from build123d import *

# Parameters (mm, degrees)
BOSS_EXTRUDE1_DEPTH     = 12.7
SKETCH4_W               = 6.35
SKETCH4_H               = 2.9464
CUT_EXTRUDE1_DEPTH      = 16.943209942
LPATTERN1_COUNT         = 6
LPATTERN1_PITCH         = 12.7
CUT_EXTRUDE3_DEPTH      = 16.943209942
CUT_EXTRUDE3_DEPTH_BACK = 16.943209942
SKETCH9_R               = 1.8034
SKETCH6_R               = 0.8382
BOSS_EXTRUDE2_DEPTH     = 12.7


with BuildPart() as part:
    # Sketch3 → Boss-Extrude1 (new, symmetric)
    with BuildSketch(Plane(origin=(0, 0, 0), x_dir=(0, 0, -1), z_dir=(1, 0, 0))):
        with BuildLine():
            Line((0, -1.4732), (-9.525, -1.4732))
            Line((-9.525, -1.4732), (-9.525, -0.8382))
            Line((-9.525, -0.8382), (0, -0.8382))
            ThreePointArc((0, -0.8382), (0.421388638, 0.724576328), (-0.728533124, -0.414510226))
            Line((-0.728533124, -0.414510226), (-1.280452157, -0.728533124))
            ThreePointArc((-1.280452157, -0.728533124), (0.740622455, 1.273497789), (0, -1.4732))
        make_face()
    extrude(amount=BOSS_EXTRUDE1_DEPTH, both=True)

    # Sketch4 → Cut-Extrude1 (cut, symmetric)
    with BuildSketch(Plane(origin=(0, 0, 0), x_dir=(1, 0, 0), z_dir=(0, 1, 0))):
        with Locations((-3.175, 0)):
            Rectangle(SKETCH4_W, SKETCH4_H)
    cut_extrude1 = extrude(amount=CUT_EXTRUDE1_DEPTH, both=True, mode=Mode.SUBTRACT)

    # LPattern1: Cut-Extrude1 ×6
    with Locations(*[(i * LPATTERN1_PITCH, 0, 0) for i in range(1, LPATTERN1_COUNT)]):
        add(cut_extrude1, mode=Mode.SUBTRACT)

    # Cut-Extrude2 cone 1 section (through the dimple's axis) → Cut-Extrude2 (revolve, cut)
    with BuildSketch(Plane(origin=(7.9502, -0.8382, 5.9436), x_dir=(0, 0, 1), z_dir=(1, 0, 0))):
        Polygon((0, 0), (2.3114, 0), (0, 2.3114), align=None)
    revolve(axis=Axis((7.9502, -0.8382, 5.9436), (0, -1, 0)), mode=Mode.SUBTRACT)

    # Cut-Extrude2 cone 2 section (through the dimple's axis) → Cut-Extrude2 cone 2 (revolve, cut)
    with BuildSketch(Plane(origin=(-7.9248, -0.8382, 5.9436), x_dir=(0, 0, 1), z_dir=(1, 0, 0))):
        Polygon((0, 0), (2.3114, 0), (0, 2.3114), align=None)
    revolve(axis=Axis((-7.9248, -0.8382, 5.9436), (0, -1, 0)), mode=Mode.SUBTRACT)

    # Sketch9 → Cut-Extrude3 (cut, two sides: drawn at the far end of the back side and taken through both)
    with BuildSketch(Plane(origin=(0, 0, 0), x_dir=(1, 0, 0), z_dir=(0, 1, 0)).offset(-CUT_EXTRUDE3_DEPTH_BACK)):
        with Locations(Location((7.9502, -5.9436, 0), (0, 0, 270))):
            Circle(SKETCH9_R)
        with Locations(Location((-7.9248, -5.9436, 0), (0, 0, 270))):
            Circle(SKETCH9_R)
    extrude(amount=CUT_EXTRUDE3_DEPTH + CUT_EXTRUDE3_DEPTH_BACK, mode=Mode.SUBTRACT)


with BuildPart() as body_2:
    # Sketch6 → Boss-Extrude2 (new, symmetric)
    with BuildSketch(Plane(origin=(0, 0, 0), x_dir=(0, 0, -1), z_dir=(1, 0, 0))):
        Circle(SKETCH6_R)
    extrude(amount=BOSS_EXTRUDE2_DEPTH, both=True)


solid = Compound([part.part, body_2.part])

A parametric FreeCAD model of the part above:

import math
import FreeCAD as App
import Part
import Sketcher

V = App.Vector
Q = App.Units.Quantity


def add_polygon(sketch, points):
    """Adds a closed chain of lines whose ends are joined by coincident constraints."""
    first, n = sketch.GeometryCount, len(points)
    for a, b in zip(points, points[1:] + points[:1]):
        sketch.addGeometry(Part.LineSegment(App.Vector(*a, 0), App.Vector(*b, 0)), False)
    for i in range(n):
        sketch.addConstraint(Sketcher.Constraint("Coincident", first + i, 2, first + (i + 1) % n, 1))

doc = App.newDocument("Part")
params = doc.addObject("Spreadsheet::Sheet", "Params")
for row, (alias, value) in enumerate([
    ("sketch1_radius", "0.058 in"),
    ("sketch1_radius2", "0.033 in"),
    ("sketch1_height", "0.375 in"),
    ("pad1_length", "1 in"),
    ("sketch2_width", "0.25 in"),
    ("sketch2_height", "0.116 in"),
    ("pocket1_length", "33.88642 mm"),
    ("linearpattern_pitch", "0.5 in"),
    ("sketch3_width", "0.091 in"),
    ("groove_angle", "360 deg"),
    ("sketch4_width", "0.091 in"),
    ("groove2_angle", "360 deg"),
    ("sketch5_diameter", "0.142 in"),
    ("sketch6_diameter", "0.066 in"),
    ("pad2_length", "1 in"),
], start=1):
    params.set(f"A{row}", alias)
    params.set(f"B{row}", "=" + value)
    params.setAlias(f"B{row}", alias)

body = doc.addObject("PartDesign::Body", "Body")

sketch1 = body.newObject("Sketcher::SketchObject", "Sketch")
sketch1.AttachmentSupport = (doc.getObject("YZ_Plane"), [""])
sketch1.MapMode = "FlatFace"
sketch1.addGeometry([
    Part.LineSegment(V(-1.5, 9.5, 0), V(-1.5, 0, 0)),
    Part.ArcOfCircle(Part.Circle(V(0, 0, 0), V(0, 0, 1), 1.5), math.radians(180), math.radians(480)),
    Part.LineSegment(V(-0.7, 1.3, 0), V(-0.4, 0.7, 0)),
    Part.ArcOfCircle(Part.Circle(V(0, 0, 0), V(0, 0, 1), 0.8), math.radians(180), math.radians(480)),
    Part.LineSegment(V(-0.8, 0, 0), V(-0.8, 9.5, 0)),
    Part.LineSegment(V(-0.8, 9.5, 0), V(-1.5, 9.5, 0)),
], False)
sketch1.addConstraint([
    Sketcher.Constraint("Tangent", 0, 2, 1, 1),
    Sketcher.Constraint("Coincident", 1, 2, 2, 1),
    Sketcher.Constraint("Coincident", 2, 2, 3, 2),
    Sketcher.Constraint("Tangent", 3, 1, 4, 1),
    Sketcher.Constraint("Coincident", 4, 2, 5, 1),
    Sketcher.Constraint("Coincident", 5, 2, 0, 1),
    Sketcher.Constraint("Vertical", 0),
    Sketcher.Constraint("Vertical", 4),
    Sketcher.Constraint("Horizontal", 5),
    Sketcher.Constraint("Coincident", 1, 3, -1, 1),
    Sketcher.Constraint("Coincident", 3, 3, -1, 1),
    Sketcher.Constraint("Radius", 1, Q("0.058 in")),
    Sketcher.Constraint("Radius", 3, Q("0.033 in")),
    Sketcher.Constraint("DistanceY", 0, 2, 0, 1, Q("0.375 in")),
    Sketcher.Constraint("DistanceX", 2, 2, -1, 1, Q("0.41451 mm")),
    Sketcher.Constraint("DistanceY", 2, 2, 1, 2, Q("0.551919 mm")),
])
sketch1.setExpression("Constraints[11]", "Params.sketch1_radius")
sketch1.setExpression("Constraints[12]", "Params.sketch1_radius2")
sketch1.setExpression("Constraints[13]", "Params.sketch1_height")
pad1 = body.newObject("PartDesign::Pad", "Pad")
pad1.Profile = sketch1
pad1.setExpression("Length", "Params.pad1_length")
pad1.Midplane = True

sketch2 = body.newObject("Sketcher::SketchObject", "Sketch001")
sketch2.AttachmentSupport = (doc.getObject("XZ_Plane"), [""])
sketch2.MapMode = "FlatFace"
add_polygon(sketch2, [(-6.3, -1.5), (-6.3, 1.5), (0, 1.5), (0, -1.5)])
sketch2.addConstraint([
    Sketcher.Constraint("Vertical", 0),
    Sketcher.Constraint("Horizontal", 1),
    Sketcher.Constraint("Vertical", 2),
    Sketcher.Constraint("Horizontal", 3),
    Sketcher.Constraint("Symmetric", 1, 2, 2, 2, -1, 1),
    Sketcher.Constraint("DistanceX", 1, 1, 1, 2, Q("0.25 in")),
    Sketcher.Constraint("DistanceY", 0, 1, 0, 2, Q("0.116 in")),
])
sketch2.setExpression("Constraints[9]", "Params.sketch2_width")
sketch2.setExpression("Constraints[10]", "Params.sketch2_height")
pocket1 = body.newObject("PartDesign::Pocket", "Pocket")
pocket1.Profile = sketch2
pocket1.setExpression("Length", "Params.pocket1_length")
pocket1.Midplane = True
doc.recompute()

linearpattern = body.newObject("PartDesign::LinearPattern", "LinearPattern")
linearpattern.Originals = [pocket1]
linearpattern.Direction = (doc.getObject("X_Axis"), [""])
linearpattern.Mode = "offset"
linearpattern.setExpression("Offset", "Params.linearpattern_pitch")
linearpattern.Occurrences = 6
body.Tip = linearpattern

sketch3 = body.newObject("Sketcher::SketchObject", "Sketch002")
sketch3.AttachmentSupport = (doc.getObject("YZ_Plane"), [""])
sketch3.MapMode = "FlatFace"
sketch3.AttachmentOffset = App.Placement(V(0, 0, 0.313 * 25.4), App.Rotation())
add_polygon(sketch3, [(-0.8, 5.9), (-0.8, 8.3), (-3.1, 5.9)])
sketch3.addGeometry(Part.LineSegment(V(-0.8, 5.9, 0), V(-3.1, 5.9, 0)), True)
sketch3.addConstraint([
    Sketcher.Constraint("Vertical", 0),
    Sketcher.Constraint("Horizontal", 2),
    Sketcher.Constraint("Horizontal", 3),
    Sketcher.Constraint("Coincident", 3, 1, 2, 2),
    Sketcher.Constraint("Equal", 2, 3),
    Sketcher.Constraint("Equal", 3, 0),
    Sketcher.Constraint("DistanceX", 2, 1, 2, 2, Q("0.091 in")),
    Sketcher.Constraint("DistanceX", 0, 2, -1, 1, Q("0.033 in")),
    Sketcher.Constraint("DistanceY", -1, 1, 0, 2, Q("0.325 in")),
])
sketch3.setExpression("Constraints[9]", "Params.sketch3_width")
groove = body.newObject("PartDesign::Groove", "Groove")
groove.Profile = sketch3
groove.ReferenceAxis = (sketch3, ["Axis0"])
groove.setExpression("Angle", "Params.groove_angle")

sketch4 = body.newObject("Sketcher::SketchObject", "Sketch003")
sketch4.AttachmentSupport = (doc.getObject("YZ_Plane"), [""])
sketch4.MapMode = "FlatFace"
sketch4.AttachmentOffset = App.Placement(V(0, 0, -0.312 * 25.4), App.Rotation())
add_polygon(sketch4, [(-0.8, 5.9), (-0.8, 8.3), (-3.1, 5.9)])
sketch4.addGeometry(Part.LineSegment(V(-0.8, 5.9, 0), V(-3.1, 5.9, 0)), True)
sketch4.addConstraint([
    Sketcher.Constraint("Vertical", 0),
    Sketcher.Constraint("Horizontal", 2),
    Sketcher.Constraint("Horizontal", 3),
    Sketcher.Constraint("Coincident", 3, 1, 2, 2),
    Sketcher.Constraint("Equal", 2, 3),
    Sketcher.Constraint("Equal", 3, 0),
    Sketcher.Constraint("DistanceX", 2, 1, 2, 2, Q("0.091 in")),
    Sketcher.Constraint("DistanceX", 0, 2, -1, 1, Q("0.033 in")),
    Sketcher.Constraint("DistanceY", -1, 1, 0, 2, Q("0.325 in")),
])
sketch4.setExpression("Constraints[9]", "Params.sketch4_width")
groove2 = body.newObject("PartDesign::Groove", "Groove001")
groove2.Profile = sketch4
groove2.ReferenceAxis = (sketch4, ["Axis0"])
groove2.setExpression("Angle", "Params.groove2_angle")

sketch5 = body.newObject("Sketcher::SketchObject", "Sketch004")
sketch5.AttachmentSupport = (doc.getObject("XZ_Plane"), [""])
sketch5.MapMode = "FlatFace"
sketch5.addGeometry([
    Part.Circle(V(8, 5.9, 0), V(0, 0, 1), 1.8),
    Part.Circle(V(-7.9, 5.9, 0), V(0, 0, 1), 1.8),
], False)
sketch5.addConstraint([
    Sketcher.Constraint("Equal", 0, 1),
    Sketcher.Constraint("Horizontal", 0, 3, 1, 3),
    Sketcher.Constraint("Diameter", 0, Q("0.142 in")),
    Sketcher.Constraint("DistanceX", -1, 1, 0, 3, Q("0.313 in")),
    Sketcher.Constraint("DistanceY", -1, 1, 0, 3, Q("0.234 in")),
    Sketcher.Constraint("DistanceX", 1, 3, -1, 1, Q("0.312 in")),
])
sketch5.setExpression("Constraints[2]", "Params.sketch5_diameter")
pocket2 = body.newObject("PartDesign::Pocket", "Pocket001")
pocket2.Profile = sketch5
pocket2.Type = "ThroughAll"
pocket2.Midplane = True
body2 = doc.addObject("PartDesign::Body", "Body001")

sketch6 = body2.newObject("Sketcher::SketchObject", "Sketch005")
sketch6.AttachmentSupport = (doc.getObject("YZ_Plane001"), [""])
sketch6.MapMode = "FlatFace"
sketch6.addGeometry(Part.Circle(V(0, 0, 0), V(0, 0, 1), 0.8), False)
sketch6.addConstraint([
    Sketcher.Constraint("Coincident", 0, 3, -1, 1),
    Sketcher.Constraint("Diameter", 0, Q("0.066 in")),
])
sketch6.setExpression("Constraints[1]", "Params.sketch6_diameter")
pad2 = body2.newObject("PartDesign::Pad", "Pad001")
pad2.Profile = sketch6
pad2.setExpression("Length", "Params.pad2_length")
pad2.Midplane = True

doc.recompute()
